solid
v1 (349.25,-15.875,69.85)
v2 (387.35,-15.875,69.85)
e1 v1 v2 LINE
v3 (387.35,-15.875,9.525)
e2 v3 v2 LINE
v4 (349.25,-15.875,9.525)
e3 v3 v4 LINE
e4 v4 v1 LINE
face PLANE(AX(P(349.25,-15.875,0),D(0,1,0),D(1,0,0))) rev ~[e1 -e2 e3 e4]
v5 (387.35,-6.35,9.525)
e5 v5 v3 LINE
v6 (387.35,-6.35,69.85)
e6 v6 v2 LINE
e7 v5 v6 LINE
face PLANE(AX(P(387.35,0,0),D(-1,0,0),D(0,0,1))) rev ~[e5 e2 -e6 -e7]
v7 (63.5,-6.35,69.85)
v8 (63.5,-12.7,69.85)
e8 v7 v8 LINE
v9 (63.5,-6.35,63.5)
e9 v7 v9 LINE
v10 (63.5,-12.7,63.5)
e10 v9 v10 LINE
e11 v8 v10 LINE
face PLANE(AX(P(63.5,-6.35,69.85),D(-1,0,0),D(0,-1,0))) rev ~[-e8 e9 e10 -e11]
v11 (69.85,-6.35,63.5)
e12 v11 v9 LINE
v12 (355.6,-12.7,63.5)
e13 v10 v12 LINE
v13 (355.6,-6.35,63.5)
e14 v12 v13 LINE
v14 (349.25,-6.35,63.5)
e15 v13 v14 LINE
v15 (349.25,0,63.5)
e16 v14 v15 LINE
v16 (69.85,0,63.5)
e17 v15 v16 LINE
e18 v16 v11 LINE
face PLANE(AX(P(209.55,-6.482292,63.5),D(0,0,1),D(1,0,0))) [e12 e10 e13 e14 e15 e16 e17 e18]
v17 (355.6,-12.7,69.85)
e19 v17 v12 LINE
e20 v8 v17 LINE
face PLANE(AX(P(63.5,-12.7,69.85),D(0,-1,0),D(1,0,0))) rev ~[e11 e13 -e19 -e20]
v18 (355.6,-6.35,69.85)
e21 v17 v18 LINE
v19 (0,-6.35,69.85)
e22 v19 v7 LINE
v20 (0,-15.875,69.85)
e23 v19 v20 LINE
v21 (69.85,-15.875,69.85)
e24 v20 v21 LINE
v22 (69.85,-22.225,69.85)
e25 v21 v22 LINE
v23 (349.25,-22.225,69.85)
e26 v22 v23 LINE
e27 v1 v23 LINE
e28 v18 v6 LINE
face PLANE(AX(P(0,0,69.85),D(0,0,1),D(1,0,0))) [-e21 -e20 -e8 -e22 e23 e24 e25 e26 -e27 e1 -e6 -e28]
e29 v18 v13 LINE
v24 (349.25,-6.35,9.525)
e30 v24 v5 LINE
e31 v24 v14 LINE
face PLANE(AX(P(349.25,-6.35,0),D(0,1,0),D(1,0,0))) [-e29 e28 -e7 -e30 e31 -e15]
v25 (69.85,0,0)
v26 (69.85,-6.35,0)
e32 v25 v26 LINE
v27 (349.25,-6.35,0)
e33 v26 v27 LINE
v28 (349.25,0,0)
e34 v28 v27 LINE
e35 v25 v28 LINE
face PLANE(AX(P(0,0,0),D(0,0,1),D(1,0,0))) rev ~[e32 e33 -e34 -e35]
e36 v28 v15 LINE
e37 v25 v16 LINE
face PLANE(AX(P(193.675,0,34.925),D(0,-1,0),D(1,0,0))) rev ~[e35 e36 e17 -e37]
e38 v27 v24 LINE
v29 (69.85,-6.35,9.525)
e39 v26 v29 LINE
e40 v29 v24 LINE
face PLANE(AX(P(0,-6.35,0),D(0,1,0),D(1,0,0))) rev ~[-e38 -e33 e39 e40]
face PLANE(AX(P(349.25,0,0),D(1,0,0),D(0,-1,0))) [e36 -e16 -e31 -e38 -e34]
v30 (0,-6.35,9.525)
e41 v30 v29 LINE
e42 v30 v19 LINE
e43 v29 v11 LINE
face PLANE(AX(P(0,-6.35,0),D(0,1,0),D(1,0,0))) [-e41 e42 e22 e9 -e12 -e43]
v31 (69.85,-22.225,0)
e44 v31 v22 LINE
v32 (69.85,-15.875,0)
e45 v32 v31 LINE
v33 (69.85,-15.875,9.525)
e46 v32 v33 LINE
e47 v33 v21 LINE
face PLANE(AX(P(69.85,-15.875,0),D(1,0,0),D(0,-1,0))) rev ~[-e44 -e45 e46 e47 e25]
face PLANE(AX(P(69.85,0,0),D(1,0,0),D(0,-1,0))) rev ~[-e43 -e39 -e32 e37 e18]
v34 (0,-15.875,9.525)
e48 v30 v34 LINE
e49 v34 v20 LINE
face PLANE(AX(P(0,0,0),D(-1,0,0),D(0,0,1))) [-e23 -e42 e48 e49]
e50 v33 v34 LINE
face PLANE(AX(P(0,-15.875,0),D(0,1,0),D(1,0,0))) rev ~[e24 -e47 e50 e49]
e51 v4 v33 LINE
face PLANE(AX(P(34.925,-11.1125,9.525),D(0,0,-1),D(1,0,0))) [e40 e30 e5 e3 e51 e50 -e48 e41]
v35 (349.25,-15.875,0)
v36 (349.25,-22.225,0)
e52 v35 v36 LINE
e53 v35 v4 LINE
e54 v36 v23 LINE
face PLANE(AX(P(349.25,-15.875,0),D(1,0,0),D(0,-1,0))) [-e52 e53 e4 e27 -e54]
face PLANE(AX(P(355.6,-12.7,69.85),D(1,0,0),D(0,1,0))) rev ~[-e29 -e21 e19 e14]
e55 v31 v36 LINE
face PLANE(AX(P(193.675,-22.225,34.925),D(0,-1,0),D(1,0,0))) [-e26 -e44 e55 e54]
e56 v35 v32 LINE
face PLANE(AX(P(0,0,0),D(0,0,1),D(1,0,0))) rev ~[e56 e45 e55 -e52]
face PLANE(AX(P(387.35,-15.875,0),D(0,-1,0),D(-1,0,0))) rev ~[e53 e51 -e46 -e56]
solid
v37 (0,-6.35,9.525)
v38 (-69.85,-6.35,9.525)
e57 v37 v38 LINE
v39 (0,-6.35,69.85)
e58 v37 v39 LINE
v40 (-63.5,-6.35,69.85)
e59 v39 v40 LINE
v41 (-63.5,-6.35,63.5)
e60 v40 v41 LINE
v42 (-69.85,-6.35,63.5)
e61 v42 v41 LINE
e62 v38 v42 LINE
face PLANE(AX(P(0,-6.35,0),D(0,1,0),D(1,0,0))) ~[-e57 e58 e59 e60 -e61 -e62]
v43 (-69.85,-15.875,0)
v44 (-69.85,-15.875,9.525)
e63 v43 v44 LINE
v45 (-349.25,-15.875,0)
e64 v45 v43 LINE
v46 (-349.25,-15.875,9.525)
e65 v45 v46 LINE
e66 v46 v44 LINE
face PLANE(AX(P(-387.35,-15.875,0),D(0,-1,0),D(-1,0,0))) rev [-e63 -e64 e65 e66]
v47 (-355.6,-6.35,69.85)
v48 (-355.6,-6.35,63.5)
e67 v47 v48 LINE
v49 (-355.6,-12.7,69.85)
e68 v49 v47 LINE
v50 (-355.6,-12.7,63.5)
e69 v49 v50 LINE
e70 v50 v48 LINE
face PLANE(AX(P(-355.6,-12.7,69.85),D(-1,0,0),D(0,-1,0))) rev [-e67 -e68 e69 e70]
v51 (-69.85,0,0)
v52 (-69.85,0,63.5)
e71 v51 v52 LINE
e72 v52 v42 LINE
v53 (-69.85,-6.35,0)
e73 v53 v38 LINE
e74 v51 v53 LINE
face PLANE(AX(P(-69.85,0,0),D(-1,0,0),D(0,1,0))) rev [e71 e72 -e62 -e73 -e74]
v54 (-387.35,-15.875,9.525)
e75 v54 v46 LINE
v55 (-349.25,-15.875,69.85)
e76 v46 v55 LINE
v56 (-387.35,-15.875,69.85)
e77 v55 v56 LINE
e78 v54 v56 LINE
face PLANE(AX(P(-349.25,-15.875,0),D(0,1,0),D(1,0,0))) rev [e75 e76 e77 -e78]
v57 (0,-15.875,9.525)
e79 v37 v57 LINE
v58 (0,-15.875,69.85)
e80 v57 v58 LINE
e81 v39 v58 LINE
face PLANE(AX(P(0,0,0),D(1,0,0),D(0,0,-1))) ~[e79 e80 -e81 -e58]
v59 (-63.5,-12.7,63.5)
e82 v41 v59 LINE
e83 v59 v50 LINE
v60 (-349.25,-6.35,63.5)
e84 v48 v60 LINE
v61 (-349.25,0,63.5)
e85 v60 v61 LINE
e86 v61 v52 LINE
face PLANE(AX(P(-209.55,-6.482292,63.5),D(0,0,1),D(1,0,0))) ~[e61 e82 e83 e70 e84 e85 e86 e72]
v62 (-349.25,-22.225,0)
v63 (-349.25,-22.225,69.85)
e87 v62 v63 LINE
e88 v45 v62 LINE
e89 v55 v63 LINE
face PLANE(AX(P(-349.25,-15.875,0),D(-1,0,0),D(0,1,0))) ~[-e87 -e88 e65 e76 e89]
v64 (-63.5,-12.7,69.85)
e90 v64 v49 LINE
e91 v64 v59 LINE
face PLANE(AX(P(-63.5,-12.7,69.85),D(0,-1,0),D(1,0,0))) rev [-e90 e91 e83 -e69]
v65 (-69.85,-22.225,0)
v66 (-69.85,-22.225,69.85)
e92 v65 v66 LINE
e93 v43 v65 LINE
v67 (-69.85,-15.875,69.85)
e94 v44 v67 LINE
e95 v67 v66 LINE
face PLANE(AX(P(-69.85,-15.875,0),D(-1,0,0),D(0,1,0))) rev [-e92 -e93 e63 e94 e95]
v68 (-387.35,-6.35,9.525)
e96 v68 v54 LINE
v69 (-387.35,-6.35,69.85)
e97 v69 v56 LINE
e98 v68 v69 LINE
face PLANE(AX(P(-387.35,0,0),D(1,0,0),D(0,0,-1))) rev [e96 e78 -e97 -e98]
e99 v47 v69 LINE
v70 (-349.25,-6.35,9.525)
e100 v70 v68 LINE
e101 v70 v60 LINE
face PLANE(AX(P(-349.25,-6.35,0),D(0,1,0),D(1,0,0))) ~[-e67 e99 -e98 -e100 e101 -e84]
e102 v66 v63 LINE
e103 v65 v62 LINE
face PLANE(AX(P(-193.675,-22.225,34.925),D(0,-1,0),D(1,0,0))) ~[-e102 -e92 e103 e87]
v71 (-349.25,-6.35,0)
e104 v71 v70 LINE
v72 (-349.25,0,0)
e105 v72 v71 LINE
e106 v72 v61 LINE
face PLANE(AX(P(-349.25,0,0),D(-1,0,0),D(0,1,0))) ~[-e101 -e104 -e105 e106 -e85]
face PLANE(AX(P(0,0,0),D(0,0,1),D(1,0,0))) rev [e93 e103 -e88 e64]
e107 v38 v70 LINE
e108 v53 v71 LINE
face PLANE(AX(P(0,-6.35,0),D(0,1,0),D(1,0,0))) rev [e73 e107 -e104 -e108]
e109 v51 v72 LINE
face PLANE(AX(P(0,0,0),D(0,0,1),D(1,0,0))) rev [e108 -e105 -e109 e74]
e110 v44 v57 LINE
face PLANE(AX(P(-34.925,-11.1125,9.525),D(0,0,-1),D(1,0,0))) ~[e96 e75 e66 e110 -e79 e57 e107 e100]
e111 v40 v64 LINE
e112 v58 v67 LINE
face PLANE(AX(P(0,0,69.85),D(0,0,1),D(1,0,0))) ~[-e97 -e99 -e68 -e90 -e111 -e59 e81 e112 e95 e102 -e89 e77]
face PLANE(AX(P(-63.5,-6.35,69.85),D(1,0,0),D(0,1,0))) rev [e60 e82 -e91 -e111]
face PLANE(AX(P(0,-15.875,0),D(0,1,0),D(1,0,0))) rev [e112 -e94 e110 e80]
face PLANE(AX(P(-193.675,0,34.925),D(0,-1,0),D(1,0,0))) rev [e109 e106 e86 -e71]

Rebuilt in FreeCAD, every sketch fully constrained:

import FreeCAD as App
import Part
import Sketcher

V = App.Vector
Q = App.Units.Quantity


def add_polygon(sketch, points):
    """Adds a closed chain of lines whose ends are joined by coincident constraints."""
    first, n = sketch.GeometryCount, len(points)
    for a, b in zip(points, points[1:] + points[:1]):
        sketch.addGeometry(Part.LineSegment(App.Vector(*a, 0), App.Vector(*b, 0)), False)
    for i in range(n):
        sketch.addConstraint(Sketcher.Constraint("Coincident", first + i, 2, first + (i + 1) % n, 1))

doc = App.newDocument("Part")
body = doc.addObject("PartDesign::Body", "Body")

# Sketch on XZ plane
sketch1 = body.newObject("Sketcher::SketchObject", "Sketch")
sketch1.AttachmentSupport = (doc.getObject("XZ_Plane"), [""])
sketch1.MapMode = "FlatFace"
add_polygon(sketch1, [(0, 70), (0, 0), (387, 0), (387, 70)])  # lines 0-3
sketch1.addConstraint([
    Sketcher.Constraint("Vertical", 0),
    Sketcher.Constraint("Horizontal", 1),
    Sketcher.Constraint("Vertical", 2),
    Sketcher.Constraint("Horizontal", 3),
    Sketcher.Constraint("Coincident", 0, 2, -1, 1),
    Sketcher.Constraint("DistanceX", 1, 1, 1, 2, Q("15.25 in")),
    Sketcher.Constraint("DistanceY", 0, 2, 0, 1, Q("2.75 in")),
])
pad1 = body.newObject("PartDesign::Pad", "Pad")
pad1.Profile = sketch1
pad1.Length = Q("0.875 in")

# Sketch on XY plane
sketch2 = body.newObject("Sketcher::SketchObject", "Sketch001")
sketch2.AttachmentSupport = (doc.getObject("XY_Plane"), [""])
sketch2.MapMode = "FlatFace"
add_polygon(sketch2, [(0, -22), (0, -16), (70, -16), (70, -22)])  # lines 0-3
add_polygon(sketch2, [(0, -6), (0, 0), (70, 0), (70, -6)])  # lines 4-7
add_polygon(sketch2, [(349, -22), (349, -16), (387, -16), (387, -22)])  # lines 8-11
add_polygon(sketch2, [(349, -6), (349, 0), (387, 0), (387, -6)])  # lines 12-15
sketch2.addConstraint([
    Sketcher.Constraint("Vertical", 0),
    Sketcher.Constraint("Horizontal", 1),
    Sketcher.Constraint("Vertical", 2),
    Sketcher.Constraint("Horizontal", 3),
    Sketcher.Constraint("Vertical", 4),
    Sketcher.Constraint("Horizontal", 5),
    Sketcher.Constraint("Vertical", 6),
    Sketcher.Constraint("Horizontal", 7),
    Sketcher.Constraint("Vertical", 8),
    Sketcher.Constraint("Horizontal", 9),
    Sketcher.Constraint("Vertical", 10),
    Sketcher.Constraint("Horizontal", 11),
    Sketcher.Constraint("Vertical", 12),
    Sketcher.Constraint("Horizontal", 13),
    Sketcher.Constraint("Vertical", 14),
    Sketcher.Constraint("Horizontal", 15),
    Sketcher.Constraint("Coincident", 4, 2, -1, 1),
    Sketcher.Constraint("PointOnObject", 0, 2, -2),
    Sketcher.Constraint("PointOnObject", 12, 2, -1),
    Sketcher.Constraint("Horizontal", 1, 2, 8, 2),
    Sketcher.Constraint("Horizontal", 3, 2, 10, 2),
    Sketcher.Constraint("Horizontal", 7, 2, 14, 2),
    Sketcher.Constraint("Vertical", 2, 2, 5, 2),
    Sketcher.Constraint("Vertical", 11, 2, 12, 2),
    Sketcher.Constraint("Vertical", 10, 2, 13, 2),
    Sketcher.Constraint("Equal", 2, 4),
    Sketcher.Constraint("DistanceX", 9, 1, 9, 2, Q("1.5 in")),
    Sketcher.Constraint("DistanceX", 1, 2, 8, 2, Q("11 in")),
    Sketcher.Constraint("DistanceX", 1, 1, 1, 2, Q("2.75 in")),
    Sketcher.Constraint("DistanceY", 0, 1, 0, 2, Q("0.25 in")),
    Sketcher.Constraint("DistanceY", 0, 2, -1, 1, Q("0.625 in")),
])
pocket1 = body.newObject("PartDesign::Pocket", "Pocket")
pocket1.Profile = sketch2
pocket1.Type = "ThroughAll"
pocket1.Reversed = True

# Sketch on XY plane
sketch3 = body.newObject("Sketcher::SketchObject", "Sketch002")
sketch3.AttachmentSupport = (doc.getObject("XY_Plane"), [""])
sketch3.MapMode = "FlatFace"
add_polygon(sketch3, [(0, -16), (0, -6), (387, -6), (387, -16)])  # lines 0-3
sketch3.addConstraint([
    Sketcher.Constraint("Vertical", 0),
    Sketcher.Constraint("Horizontal", 1),
    Sketcher.Constraint("Vertical", 2),
    Sketcher.Constraint("Horizontal", 3),
    Sketcher.Constraint("PointOnObject", 0, 2, -2),
    Sketcher.Constraint("DistanceX", 1, 1, 1, 2, Q("15.25 in")),
    Sketcher.Constraint("DistanceY", 0, 1, 0, 2, Q("0.375 in")),
    Sketcher.Constraint("DistanceY", 0, 2, -1, 1, Q("0.25 in")),
])
pocket2 = body.newObject("PartDesign::Pocket", "Pocket001")
pocket2.Profile = sketch3
pocket2.Length = Q("0.375 in")
pocket2.Reversed = True

# Sketch on XY plane
sketch4 = body.newObject("Sketcher::SketchObject", "Sketch003")
sketch4.AttachmentSupport = (doc.getObject("XY_Plane"), [""])
sketch4.MapMode = "FlatFace"
sketch4.AttachmentOffset = App.Placement(V(0, 0, 2.75 * 25.4), App.Rotation())
add_polygon(sketch4, [(349, 0), (70, 0), (70, -6), (64, -6), (64, -13), (356, -13), (356, -6), (349, -6)])  # lines 0-7
sketch4.addConstraint([
    Sketcher.Constraint("Horizontal", 0),
    Sketcher.Constraint("Vertical", 1),
    Sketcher.Constraint("Horizontal", 2),
    Sketcher.Constraint("Vertical", 3),
    Sketcher.Constraint("Horizontal", 4),
    Sketcher.Constraint("Vertical", 5),
    Sketcher.Constraint("Horizontal", 6),
    Sketcher.Constraint("Vertical", 7),
    Sketcher.Constraint("PointOnObject", 0, 2, -1),
    Sketcher.Constraint("Horizontal", 2, 2, 5, 2),
    Sketcher.Constraint("Equal", 2, 6),
    Sketcher.Constraint("Equal", 6, 1),
    Sketcher.Constraint("Equal", 1, 3),
    Sketcher.Constraint("DistanceX", 0, 2, 0, 1, Q("11 in")),
    Sketcher.Constraint("DistanceX", 4, 1, 4, 2, Q("11.5 in")),
    Sketcher.Constraint("DistanceX", -1, 1, 4, 2, Q("14 in")),
])
pocket3 = body.newObject("PartDesign::Pocket", "Pocket002")
pocket3.Profile = sketch4
pocket3.Length = Q("0.25 in")
body2 = doc.addObject("PartDesign::Body", "Body001")
doc.recompute()

mirroring = doc.addObject("Part::Mirroring", "Mirroring")
mirroring.Source = body
mirroring.Base = V(0, 0, 0)
mirroring.Normal = V(1, 0, 0)
body2.BaseFeature = mirroring
doc.recompute()
mirroring.Visibility = False

doc.recompute()
